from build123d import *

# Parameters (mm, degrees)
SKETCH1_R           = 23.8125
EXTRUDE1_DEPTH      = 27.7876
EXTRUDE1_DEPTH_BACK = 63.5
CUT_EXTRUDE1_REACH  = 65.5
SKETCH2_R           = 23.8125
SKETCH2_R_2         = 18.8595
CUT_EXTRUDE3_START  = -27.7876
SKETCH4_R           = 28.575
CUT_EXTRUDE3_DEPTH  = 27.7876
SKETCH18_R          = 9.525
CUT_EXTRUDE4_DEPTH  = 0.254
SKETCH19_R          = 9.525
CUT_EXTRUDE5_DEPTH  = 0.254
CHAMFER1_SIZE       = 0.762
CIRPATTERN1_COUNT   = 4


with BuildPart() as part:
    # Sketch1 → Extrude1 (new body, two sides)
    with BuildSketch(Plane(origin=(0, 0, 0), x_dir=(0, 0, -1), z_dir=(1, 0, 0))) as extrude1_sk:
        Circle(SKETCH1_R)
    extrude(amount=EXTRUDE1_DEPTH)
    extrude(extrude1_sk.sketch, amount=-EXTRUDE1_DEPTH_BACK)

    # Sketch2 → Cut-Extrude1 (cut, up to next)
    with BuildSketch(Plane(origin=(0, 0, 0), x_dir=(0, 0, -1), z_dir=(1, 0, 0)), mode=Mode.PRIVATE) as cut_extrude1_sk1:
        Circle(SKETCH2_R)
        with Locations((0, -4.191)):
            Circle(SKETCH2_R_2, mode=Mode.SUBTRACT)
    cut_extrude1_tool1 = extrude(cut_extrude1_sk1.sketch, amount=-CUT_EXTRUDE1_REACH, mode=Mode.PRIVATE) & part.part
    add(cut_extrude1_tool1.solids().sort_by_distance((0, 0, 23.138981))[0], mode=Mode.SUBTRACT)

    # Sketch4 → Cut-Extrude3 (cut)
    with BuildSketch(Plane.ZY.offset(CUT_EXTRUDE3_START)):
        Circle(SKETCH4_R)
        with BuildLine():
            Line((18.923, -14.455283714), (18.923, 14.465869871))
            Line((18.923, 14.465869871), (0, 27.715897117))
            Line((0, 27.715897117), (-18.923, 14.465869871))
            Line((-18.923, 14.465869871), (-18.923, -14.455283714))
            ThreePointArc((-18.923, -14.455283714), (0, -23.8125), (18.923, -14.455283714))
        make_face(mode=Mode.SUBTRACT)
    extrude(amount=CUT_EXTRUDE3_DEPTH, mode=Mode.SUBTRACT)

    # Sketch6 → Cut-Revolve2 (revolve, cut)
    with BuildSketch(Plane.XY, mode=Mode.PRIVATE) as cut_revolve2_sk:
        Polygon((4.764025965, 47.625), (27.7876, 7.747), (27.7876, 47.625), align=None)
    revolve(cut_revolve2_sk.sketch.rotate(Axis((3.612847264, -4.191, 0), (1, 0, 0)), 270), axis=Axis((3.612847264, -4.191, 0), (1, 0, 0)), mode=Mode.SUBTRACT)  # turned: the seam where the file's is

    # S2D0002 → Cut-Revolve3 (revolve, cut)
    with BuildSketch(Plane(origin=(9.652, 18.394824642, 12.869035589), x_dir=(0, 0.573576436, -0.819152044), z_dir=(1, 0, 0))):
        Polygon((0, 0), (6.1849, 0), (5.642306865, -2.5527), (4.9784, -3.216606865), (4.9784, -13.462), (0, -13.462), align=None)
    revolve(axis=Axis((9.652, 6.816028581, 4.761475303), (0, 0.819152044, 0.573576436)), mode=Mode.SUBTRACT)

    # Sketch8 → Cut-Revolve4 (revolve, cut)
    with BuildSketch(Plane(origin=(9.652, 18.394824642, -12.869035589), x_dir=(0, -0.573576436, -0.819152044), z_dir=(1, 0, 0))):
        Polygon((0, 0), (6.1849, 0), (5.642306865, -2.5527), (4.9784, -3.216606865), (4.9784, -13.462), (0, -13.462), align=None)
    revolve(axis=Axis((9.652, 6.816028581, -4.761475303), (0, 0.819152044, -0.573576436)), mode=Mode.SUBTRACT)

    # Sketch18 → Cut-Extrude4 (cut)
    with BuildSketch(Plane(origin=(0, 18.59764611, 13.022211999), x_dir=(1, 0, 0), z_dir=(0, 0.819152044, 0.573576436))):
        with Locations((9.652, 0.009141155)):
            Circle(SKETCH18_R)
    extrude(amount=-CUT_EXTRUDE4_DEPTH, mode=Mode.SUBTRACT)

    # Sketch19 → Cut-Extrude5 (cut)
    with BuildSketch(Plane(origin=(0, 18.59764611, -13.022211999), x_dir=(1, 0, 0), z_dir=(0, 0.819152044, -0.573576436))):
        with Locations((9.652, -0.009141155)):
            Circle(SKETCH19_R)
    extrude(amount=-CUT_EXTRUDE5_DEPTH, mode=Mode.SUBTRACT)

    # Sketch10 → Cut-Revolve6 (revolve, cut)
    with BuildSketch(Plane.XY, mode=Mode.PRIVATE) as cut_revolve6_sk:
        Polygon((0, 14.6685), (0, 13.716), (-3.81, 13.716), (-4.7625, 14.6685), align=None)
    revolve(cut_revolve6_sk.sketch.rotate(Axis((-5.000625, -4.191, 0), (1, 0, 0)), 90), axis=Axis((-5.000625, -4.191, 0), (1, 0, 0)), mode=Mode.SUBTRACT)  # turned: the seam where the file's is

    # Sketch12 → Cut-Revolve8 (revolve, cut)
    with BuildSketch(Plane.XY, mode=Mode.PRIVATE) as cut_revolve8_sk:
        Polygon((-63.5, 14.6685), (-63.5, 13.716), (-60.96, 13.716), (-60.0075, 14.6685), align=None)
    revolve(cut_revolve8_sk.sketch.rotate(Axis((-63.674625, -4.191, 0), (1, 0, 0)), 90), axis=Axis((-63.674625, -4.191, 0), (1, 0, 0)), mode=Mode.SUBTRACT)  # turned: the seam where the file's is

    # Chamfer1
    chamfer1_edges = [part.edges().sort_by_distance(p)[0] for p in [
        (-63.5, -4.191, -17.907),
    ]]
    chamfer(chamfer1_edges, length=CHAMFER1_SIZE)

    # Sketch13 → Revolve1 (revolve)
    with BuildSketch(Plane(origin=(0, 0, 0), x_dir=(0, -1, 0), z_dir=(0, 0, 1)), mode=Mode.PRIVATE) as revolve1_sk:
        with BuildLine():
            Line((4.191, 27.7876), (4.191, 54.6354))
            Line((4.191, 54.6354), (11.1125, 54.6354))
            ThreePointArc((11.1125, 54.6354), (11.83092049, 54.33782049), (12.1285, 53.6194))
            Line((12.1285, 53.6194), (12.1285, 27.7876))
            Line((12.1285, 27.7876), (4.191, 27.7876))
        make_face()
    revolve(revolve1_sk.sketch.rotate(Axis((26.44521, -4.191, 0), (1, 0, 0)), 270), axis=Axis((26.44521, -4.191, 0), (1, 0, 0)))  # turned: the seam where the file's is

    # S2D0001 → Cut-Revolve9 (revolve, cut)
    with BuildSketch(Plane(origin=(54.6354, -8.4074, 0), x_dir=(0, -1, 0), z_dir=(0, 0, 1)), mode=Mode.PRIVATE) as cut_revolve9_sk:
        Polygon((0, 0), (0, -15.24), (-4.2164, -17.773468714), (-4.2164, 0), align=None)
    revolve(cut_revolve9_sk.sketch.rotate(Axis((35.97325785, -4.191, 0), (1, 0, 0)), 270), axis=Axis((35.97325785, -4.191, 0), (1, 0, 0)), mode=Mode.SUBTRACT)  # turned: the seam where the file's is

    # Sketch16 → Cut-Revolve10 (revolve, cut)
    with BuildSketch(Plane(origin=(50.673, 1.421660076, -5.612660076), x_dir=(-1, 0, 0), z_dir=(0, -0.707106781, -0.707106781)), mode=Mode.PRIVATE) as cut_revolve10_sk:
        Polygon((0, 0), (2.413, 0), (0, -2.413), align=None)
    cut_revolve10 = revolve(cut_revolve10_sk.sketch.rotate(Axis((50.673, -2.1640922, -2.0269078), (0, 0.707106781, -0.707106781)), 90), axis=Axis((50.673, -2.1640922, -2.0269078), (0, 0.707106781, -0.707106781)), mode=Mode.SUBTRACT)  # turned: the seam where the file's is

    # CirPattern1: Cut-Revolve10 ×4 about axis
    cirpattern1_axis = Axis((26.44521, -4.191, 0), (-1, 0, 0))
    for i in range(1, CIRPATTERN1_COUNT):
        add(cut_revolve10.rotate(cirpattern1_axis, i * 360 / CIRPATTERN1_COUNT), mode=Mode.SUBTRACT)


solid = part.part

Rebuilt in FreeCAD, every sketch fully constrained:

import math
import FreeCAD as App
import Part
import Sketcher

V = App.Vector
Q = App.Units.Quantity


def edges_at(feature, points):
    """Names of the edges that pass closest to the given points."""
    edges = feature.Shape.Edges
    near = lambda p: min(range(len(edges)), key=lambda i: edges[i].distToShape(Part.Vertex(*p))[0])
    return sorted({f"Edge{near(p) + 1}" for p in points})

doc = App.newDocument("Part")
params = doc.addObject("Spreadsheet::Sheet", "Params")
for row, (alias, value) in enumerate([
    ("sketch1_diameter", "1.875 in"),
    ("pad1_length", "1.094 in"),
    ("pad1_length2", "2.5 in"),
    ("sketch2_diameter", "1.875 in"),
    ("sketch2_diameter2", "1.485 in"),
    ("sketch3_diameter", "2.25 in"),
    ("sketch3_radius", "0.9375 in"),
    ("pocket2_length", "1.094 in"),
    ("sketch4_height", "1.57 in"),
    ("groove_angle", "360 deg"),
    ("sketch5_length", "0.53 in"),
    ("sketch5_length2", "0.196 in"),
    ("groove2_angle", "360 deg"),
    ("sketch6_length", "0.53 in"),
    ("sketch6_length2", "0.196 in"),
    ("groove3_angle", "360 deg"),
    ("sketch7_diameter", "0.75 in"),
    ("pocket3_length", "0.01 in"),
    ("sketch8_diameter", "0.75 in"),
    ("pocket4_length", "0.01 in"),
    ("sketch9_width", "0.15 in"),
    ("sketch9_width2", "0.1875 in"),
    ("groove4_angle", "360 deg"),
    ("sketch10_width", "0.1 in"),
    ("groove5_angle", "360 deg"),
    ("chamfer_size", "0.03 in"),
    ("sketch11_radius", "0.04 in"),
    ("sketch11_width", "1.057 in"),
    ("sketch11_height", "0.3125 in"),
    ("revolution_angle", "360 deg"),
    ("sketch12_width", "0.6 in"),
    ("sketch12_height", "0.166 in"),
    ("groove6_angle", "360 deg"),
    ("sketch13_width", "0.095 in"),
    ("groove7_angle", "360 deg"),
], start=1):
    params.set(f"A{row}", alias)
    params.set(f"B{row}", "=" + value)
    params.setAlias(f"B{row}", alias)

body = doc.addObject("PartDesign::Body", "Body")

# Sketch on YZ plane
sketch1 = body.newObject("Sketcher::SketchObject", "Sketch")
sketch1.AttachmentSupport = (doc.getObject("YZ_Plane"), [""])
sketch1.MapMode = "FlatFace"
sketch1.addGeometry(Part.Circle(V(0, 0, 0), V(0, 0, 1), 24), False)
sketch1.addConstraint(Sketcher.Constraint("Coincident", 0, 3, -1, 1))
sketch1.addConstraint(Sketcher.Constraint("Diameter", 0, Q("1.875 in")))
sketch1.setExpression("Constraints[1]", "Params.sketch1_diameter")
pad1 = body.newObject("PartDesign::Pad", "Pad")
pad1.Profile = sketch1
pad1.Type = "TwoLengths"
pad1.setExpression("Length", "Params.pad1_length")
pad1.setExpression("Length2", "Params.pad1_length2")

# Sketch on YZ plane
sketch2 = body.newObject("Sketcher::SketchObject", "Sketch001")
sketch2.AttachmentSupport = (doc.getObject("YZ_Plane"), [""])
sketch2.MapMode = "FlatFace"
sketch2.addGeometry(Part.Circle(V(0, 0, 0), V(0, 0, 1), 24), False)
sketch2.addGeometry(Part.Circle(V(-4, 0, 0), V(0, 0, 1), 19), False)
sketch2.addConstraint(Sketcher.Constraint("Coincident", 0, 3, -1, 1))
sketch2.addConstraint(Sketcher.Constraint("PointOnObject", 1, 3, -1))
sketch2.addConstraint(Sketcher.Constraint("Diameter", 0, Q("1.875 in")))
sketch2.addConstraint(Sketcher.Constraint("Diameter", 1, Q("1.485 in")))
sketch2.addConstraint(Sketcher.Constraint("DistanceX", 1, 3, -1, 1, Q("0.165 in")))
sketch2.setExpression("Constraints[2]", "Params.sketch2_diameter")
sketch2.setExpression("Constraints[3]", "Params.sketch2_diameter2")
pocket1 = body.newObject("PartDesign::Pocket", "Pocket")
pocket1.Profile = sketch2
pocket1.Type = "UpToFirst"

# Sketch on YZ plane
sketch3 = body.newObject("Sketcher::SketchObject", "Sketch002")
sketch3.AttachmentSupport = (doc.getObject("YZ_Plane"), [""])
sketch3.MapMode = "FlatFace"
sketch3.AttachmentOffset = App.Placement(V(0, 0, 1.094 * 25.4), App.Rotation())
sketch3.addGeometry(Part.Circle(V(0, 0, 0), V(0, 0, 1), 29), False)
sketch3.addGeometry(Part.LineSegment(V(14, 19, 0), V(-14, 19, 0)), False)
sketch3.addGeometry(Part.ArcOfCircle(Part.Circle(V(0, 0, 0), V(0, 0, 1), 24), math.radians(127), math.radians(233)), False)
sketch3.addGeometry(Part.LineSegment(V(-14, -19, 0), V(14, -19, 0)), False)
sketch3.addGeometry(Part.LineSegment(V(14, -19, 0), V(28, 0, 0)), False)
sketch3.addGeometry(Part.LineSegment(V(28, 0, 0), V(14, 19, 0)), False)
sketch3.addConstraint(Sketcher.Constraint("Coincident", 1, 2, 2, 1))
sketch3.addConstraint(Sketcher.Constraint("Coincident", 2, 2, 3, 1))
sketch3.addConstraint(Sketcher.Constraint("Coincident", 3, 2, 4, 1))
sketch3.addConstraint(Sketcher.Constraint("Coincident", 4, 2, 5, 1))
sketch3.addConstraint(Sketcher.Constraint("Coincident", 5, 2, 1, 1))
sketch3.addConstraint(Sketcher.Constraint("Horizontal", 1))
sketch3.addConstraint(Sketcher.Constraint("Horizontal", 3))
sketch3.addConstraint(Sketcher.Constraint("Coincident", 0, 3, -1, 1))
sketch3.addConstraint(Sketcher.Constraint("Coincident", 2, 3, -1, 1))
sketch3.addConstraint(Sketcher.Constraint("Symmetric", 3, 2, 5, 2, -1))
sketch3.addConstraint(Sketcher.Constraint("PointOnObject", 4, 2, -1))
sketch3.addConstraint(Sketcher.Constraint("Diameter", 0, Q("2.25 in")))
sketch3.addConstraint(Sketcher.Constraint("Angle", 4, Q("55 deg")))
sketch3.addConstraint(Sketcher.Constraint("Radius", 2, Q("0.9375 in")))
sketch3.addConstraint(Sketcher.Constraint("DistanceY", 2, 2, 1, 2, Q("1.49 in")))
sketch3.addConstraint(Sketcher.Constraint("DistanceX", 1, 2, 1, 1, Q("28.921154 mm")))
sketch3.setExpression("Constraints[11]", "Params.sketch3_diameter")
sketch3.setExpression("Constraints[13]", "Params.sketch3_radius")
pocket2 = body.newObject("PartDesign::Pocket", "Pocket001")
pocket2.Profile = sketch3
pocket2.setExpression("Length", "Params.pocket2_length")

# Sketch on XY plane
sketch4 = body.newObject("Sketcher::SketchObject", "Sketch003")
sketch4.AttachmentSupport = (doc.getObject("XY_Plane"), [""])
sketch4.MapMode = "FlatFace"
sketch4.addGeometry(Part.LineSegment(V(5, 48, 0), V(28, 8, 0)), False)
sketch4.addGeometry(Part.LineSegment(V(28, 8, 0), V(28, 48, 0)), False)
sketch4.addGeometry(Part.LineSegment(V(28, 48, 0), V(5, 48, 0)), False)
sketch4.addGeometry(Part.LineSegment(V(5, -4, 0), V(28, -4, 0)), True)  # axis
sketch4.addConstraint(Sketcher.Constraint("Coincident", 0, 2, 1, 1))
sketch4.addConstraint(Sketcher.Constraint("Coincident", 1, 2, 2, 1))
sketch4.addConstraint(Sketcher.Constraint("Coincident", 2, 2, 0, 1))
sketch4.addConstraint(Sketcher.Constraint("Vertical", 1))
sketch4.addConstraint(Sketcher.Constraint("Horizontal", 2))
sketch4.addConstraint(Sketcher.Constraint("Horizontal", 3))
sketch4.addConstraint(Sketcher.Constraint("Vertical", 2, 2, 3, 1))
sketch4.addConstraint(Sketcher.Constraint("Vertical", 1, 2, 3, 2))
sketch4.addConstraint(Sketcher.Constraint("Angle", 0, Q("-60 deg")))
sketch4.addConstraint(Sketcher.Constraint("DistanceY", 1, 1, 1, 2, Q("1.57 in")))
sketch4.addConstraint(Sketcher.Constraint("DistanceY", 3, 1, 0, 2, Q("0.47 in")))
sketch4.addConstraint(Sketcher.Constraint("DistanceX", -1, 1, 0, 2, Q("1.094 in")))
sketch4.addConstraint(Sketcher.Constraint("DistanceY", -1, 1, 0, 2, Q("0.305 in")))
sketch4.setExpression("Constraints[9]", "Params.sketch4_height")
groove = body.newObject("PartDesign::Groove", "Groove")
groove.Profile = sketch4
groove.ReferenceAxis = (sketch4, ["Axis0"])
groove.setExpression("Angle", "Params.groove_angle")

# Sketch on YZ plane
sketch5 = body.newObject("Sketcher::SketchObject", "Sketch004")
sketch5.AttachmentSupport = (doc.getObject("YZ_Plane"), [""])
sketch5.MapMode = "FlatFace"
sketch5.AttachmentOffset = App.Placement(V(0, 0, 0.38 * 25.4), App.Rotation())
sketch5.addGeometry(Part.LineSegment(V(21.9, 7.8, 0), V(18.4, 12.9, 0)), False)
sketch5.addGeometry(Part.LineSegment(V(18.4, 12.9, 0), V(7.4, 5.1, 0)), False)
sketch5.addGeometry(Part.LineSegment(V(7.4, 5.1, 0), V(10.2, 1.1, 0)), False)
sketch5.addGeometry(Part.LineSegment(V(10.2, 1.1, 0), V(18.6, 6.9, 0)), False)
sketch5.addGeometry(Part.LineSegment(V(18.6, 6.9, 0), V(19.5, 6.8, 0)), False)
sketch5.addGeometry(Part.LineSegment(V(19.5, 6.8, 0), V(21.9, 7.8, 0)), False)
sketch5.addGeometry(Part.LineSegment(V(7.4, 5.1, 0), V(18.4, 12.9, 0)), True)  # axis
sketch5.addConstraint(Sketcher.Constraint("Coincident", 0, 2, 1, 1))
sketch5.addConstraint(Sketcher.Constraint("Coincident", 1, 2, 2, 1))
sketch5.addConstraint(Sketcher.Constraint("Coincident", 2, 2, 3, 1))
sketch5.addConstraint(Sketcher.Constraint("Coincident", 3, 2, 4, 1))
sketch5.addConstraint(Sketcher.Constraint("Coincident", 4, 2, 5, 1))
sketch5.addConstraint(Sketcher.Constraint("Coincident", 5, 2, 0, 1))
sketch5.addConstraint(Sketcher.Constraint("Coincident", 6, 1, 1, 2))
sketch5.addConstraint(Sketcher.Constraint("Coincident", 6, 2, 0, 2))
sketch5.addConstraint(Sketcher.Constraint("Perpendicular", 0, 1))
sketch5.addConstraint(Sketcher.Constraint("Perpendicular", 1, 2))
sketch5.addConstraint(Sketcher.Constraint("Perpendicular", 2, 3))
sketch5.addConstraint(Sketcher.Constraint("Angle", 0, Q("125 deg")))
sketch5.addConstraint(Sketcher.Constraint("Angle", 4, Q("-10 deg")))
sketch5.addConstraint(Sketcher.Constraint("Angle", 5, Q("23 deg")))
sketch5.addConstraint(Sketcher.Constraint("Distance", 1, Q("0.53 in")))
sketch5.addConstraint(Sketcher.Constraint("Distance", 2, Q("0.196 in")))
sketch5.addConstraint(Sketcher.Constraint("Distance", 0, Q("0.2435 in")))
sketch5.addConstraint(Sketcher.Constraint("DistanceX", -1, 1, 1, 2, Q("7.3674 mm")))
sketch5.addConstraint(Sketcher.Constraint("DistanceY", -1, 1, 3, 2, Q("6.945999 mm")))
sketch5.addConstraint(Sketcher.Constraint("Distance", 5, Q("2.609729 mm")))
sketch5.setExpression("Constraints[14]", "Params.sketch5_length")
sketch5.setExpression("Constraints[15]", "Params.sketch5_length2")
groove2 = body.newObject("PartDesign::Groove", "Groove001")
groove2.Profile = sketch5
groove2.ReferenceAxis = (sketch5, ["Axis0"])
groove2.setExpression("Angle", "Params.groove2_angle")

# Sketch on YZ plane
sketch6 = body.newObject("Sketcher::SketchObject", "Sketch005")
sketch6.AttachmentSupport = (doc.getObject("YZ_Plane"), [""])
sketch6.MapMode = "FlatFace"
sketch6.AttachmentOffset = App.Placement(V(0, 0, 0.38 * 25.4), App.Rotation())
sketch6.addGeometry(Part.LineSegment(V(14.8, -17.9, 0), V(18.4, -12.9, 0)), False)
sketch6.addGeometry(Part.LineSegment(V(18.4, -12.9, 0), V(7.4, -5.1, 0)), False)
sketch6.addGeometry(Part.LineSegment(V(7.4, -5.1, 0), V(4.5, -9.2, 0)), False)
sketch6.addGeometry(Part.LineSegment(V(4.5, -9.2, 0), V(12.9, -15.1, 0)), False)
sketch6.addGeometry(Part.LineSegment(V(12.9, -15.1, 0), V(13.1, -16, 0)), False)
sketch6.addGeometry(Part.LineSegment(V(13.1, -16, 0), V(14.8, -17.9, 0)), False)
sketch6.addGeometry(Part.LineSegment(V(7.4, -5.1, 0), V(18.4, -12.9, 0)), True)  # axis
sketch6.addConstraint(Sketcher.Constraint("Coincident", 0, 2, 1, 1))
sketch6.addConstraint(Sketcher.Constraint("Coincident", 1, 2, 2, 1))
sketch6.addConstraint(Sketcher.Constraint("Coincident", 2, 2, 3, 1))
sketch6.addConstraint(Sketcher.Constraint("Coincident", 3, 2, 4, 1))
sketch6.addConstraint(Sketcher.Constraint("Coincident", 4, 2, 5, 1))
sketch6.addConstraint(Sketcher.Constraint("Coincident", 5, 2, 0, 1))
sketch6.addConstraint(Sketcher.Constraint("Coincident", 6, 1, 1, 2))
sketch6.addConstraint(Sketcher.Constraint("Coincident", 6, 2, 0, 2))
sketch6.addConstraint(Sketcher.Constraint("Perpendicular", 0, 1))
sketch6.addConstraint(Sketcher.Constraint("Perpendicular", 1, 2))
sketch6.addConstraint(Sketcher.Constraint("Perpendicular", 2, 3))
sketch6.addConstraint(Sketcher.Constraint("Angle", 0, Q("55 deg")))
sketch6.addConstraint(Sketcher.Constraint("Angle", 4, Q("-80 deg")))
sketch6.addConstraint(Sketcher.Constraint("Angle", 5, Q("-47 deg")))
sketch6.addConstraint(Sketcher.Constraint("Distance", 1, Q("0.53 in")))
sketch6.addConstraint(Sketcher.Constraint("Distance", 2, Q("0.196 in")))
sketch6.addConstraint(Sketcher.Constraint("Distance", 0, Q("0.2435 in")))
sketch6.addConstraint(Sketcher.Constraint("DistanceX", -1, 1, 1, 2, Q("7.3674 mm")))
sketch6.addConstraint(Sketcher.Constraint("Distance", 5, Q("2.609729 mm")))
sketch6.addConstraint(Sketcher.Constraint("DistanceY", 1, 2, -1, 1, Q("5.14755 mm")))
sketch6.setExpression("Constraints[14]", "Params.sketch6_length")
sketch6.setExpression("Constraints[15]", "Params.sketch6_length2")
groove3 = body.newObject("PartDesign::Groove", "Groove002")
groove3.Profile = sketch6
groove3.ReferenceAxis = (sketch6, ["Axis0"])
groove3.setExpression("Angle", "Params.groove3_angle")

# Sketch on an angled plane
sketch7 = body.newObject("Sketcher::SketchObject", "Sketch006")
sketch7.Placement = App.Placement(V(0, 18.597646, 13.022212), App.Rotation(V(1, 0, 0), V(0, 0.573576436, -0.819152044), V(0, 0.819152044, 0.573576436), "ZXY"))
sketch7.addGeometry(Part.Circle(V(10, 0, 0), V(0, 0, 1), 10), False)
sketch7.addConstraint(Sketcher.Constraint("Diameter", 0, Q("0.75 in")))
sketch7.addConstraint(Sketcher.Constraint("DistanceX", -1, 1, 0, 3, Q("0.38 in")))
sketch7.addConstraint(Sketcher.Constraint("DistanceY", -1, 1, 0, 3, Q("0.009141 mm")))
sketch7.setExpression("Constraints[0]", "Params.sketch7_diameter")
pocket3 = body.newObject("PartDesign::Pocket", "Pocket002")
pocket3.Profile = sketch7
pocket3.setExpression("Length", "Params.pocket3_length")

# Sketch on an angled plane
sketch8 = body.newObject("Sketcher::SketchObject", "Sketch007")
sketch8.Placement = App.Placement(V(0, 18.597646, -13.022212), App.Rotation(V(1, 0, 0), V(0, -0.573576436, -0.819152044), V(0, 0.819152044, -0.573576436), "ZXY"))
sketch8.addGeometry(Part.Circle(V(10, 0, 0), V(0, 0, 1), 10), False)
sketch8.addConstraint(Sketcher.Constraint("Diameter", 0, Q("0.75 in")))
sketch8.addConstraint(Sketcher.Constraint("DistanceX", -1, 1, 0, 3, Q("0.38 in")))
sketch8.addConstraint(Sketcher.Constraint("DistanceY", 0, 3, -1, 1, Q("0.009141 mm")))
sketch8.setExpression("Constraints[0]", "Params.sketch8_diameter")
pocket4 = body.newObject("PartDesign::Pocket", "Pocket003")
pocket4.Profile = sketch8
pocket4.setExpression("Length", "Params.pocket4_length")

# Sketch on XY plane
sketch9 = body.newObject("Sketcher::SketchObject", "Sketch008")
sketch9.AttachmentSupport = (doc.getObject("XY_Plane"), [""])
sketch9.MapMode = "FlatFace"
sketch9.addGeometry(Part.LineSegment(V(0, 13.7, 0), V(0, 14.7, 0)), False)
sketch9.addGeometry(Part.LineSegment(V(0, 14.7, 0), V(-4.8, 14.7, 0)), False)
sketch9.addGeometry(Part.LineSegment(V(-4.8, 14.7, 0), V(-3.8, 13.7, 0)), False)
sketch9.addGeometry(Part.LineSegment(V(-3.8, 13.7, 0), V(0, 13.7, 0)), False)
sketch9.addGeometry(Part.LineSegment(V(-4.8, -4.2, 0), V(0, -4.2, 0)), True)  # axis
sketch9.addConstraint(Sketcher.Constraint("Coincident", 0, 2, 1, 1))
sketch9.addConstraint(Sketcher.Constraint("Coincident", 1, 2, 2, 1))
sketch9.addConstraint(Sketcher.Constraint("Coincident", 2, 2, 3, 1))
sketch9.addConstraint(Sketcher.Constraint("Coincident", 3, 2, 0, 1))
sketch9.addConstraint(Sketcher.Constraint("Vertical", 0))
sketch9.addConstraint(Sketcher.Constraint("Horizontal", 1))
sketch9.addConstraint(Sketcher.Constraint("Horizontal", 3))
sketch9.addConstraint(Sketcher.Constraint("Horizontal", 4))
sketch9.addConstraint(Sketcher.Constraint("PointOnObject", 0, 2, -2))
sketch9.addConstraint(Sketcher.Constraint("PointOnObject", 4, 2, -2))
sketch9.addConstraint(Sketcher.Constraint("Vertical", 1, 2, 4, 1))
sketch9.addConstraint(Sketcher.Constraint("Angle", 2, Q("-45 deg")))
sketch9.addConstraint(Sketcher.Constraint("DistanceX", 3, 1, 3, 2, Q("0.15 in")))
sketch9.addConstraint(Sketcher.Constraint("DistanceX", 1, 2, 1, 1, Q("0.1875 in")))
sketch9.addConstraint(Sketcher.Constraint("DistanceY", -1, 1, 2, 2, Q("0.54 in")))
sketch9.addConstraint(Sketcher.Constraint("DistanceY", 4, 1, -1, 1, Q("0.165 in")))
sketch9.setExpression("Constraints[12]", "Params.sketch9_width")
sketch9.setExpression("Constraints[13]", "Params.sketch9_width2")
groove4 = body.newObject("PartDesign::Groove", "Groove003")
groove4.Profile = sketch9
groove4.ReferenceAxis = (sketch9, ["Axis0"])
groove4.setExpression("Angle", "Params.groove4_angle")

# Sketch on XY plane
sketch10 = body.newObject("Sketcher::SketchObject", "Sketch009")
sketch10.AttachmentSupport = (doc.getObject("XY_Plane"), [""])
sketch10.MapMode = "FlatFace"
sketch10.addGeometry(Part.LineSegment(V(-63.5, 14.7, 0), V(-63.5, 13.7, 0)), False)
sketch10.addGeometry(Part.LineSegment(V(-63.5, 13.7, 0), V(-61, 13.7, 0)), False)
sketch10.addGeometry(Part.LineSegment(V(-61, 13.7, 0), V(-60, 14.7, 0)), False)
sketch10.addGeometry(Part.LineSegment(V(-60, 14.7, 0), V(-63.5, 14.7, 0)), False)
sketch10.addGeometry(Part.LineSegment(V(-63.5, -4.2, 0), V(-60, -4.2, 0)), True)  # axis
sketch10.addConstraint(Sketcher.Constraint("Coincident", 0, 2, 1, 1))
sketch10.addConstraint(Sketcher.Constraint("Coincident", 1, 2, 2, 1))
sketch10.addConstraint(Sketcher.Constraint("Coincident", 2, 2, 3, 1))
sketch10.addConstraint(Sketcher.Constraint("Coincident", 3, 2, 0, 1))
sketch10.addConstraint(Sketcher.Constraint("Vertical", 0))
sketch10.addConstraint(Sketcher.Constraint("Horizontal", 1))
sketch10.addConstraint(Sketcher.Constraint("Horizontal", 3))
sketch10.addConstraint(Sketcher.Constraint("Horizontal", 4))
sketch10.addConstraint(Sketcher.Constraint("Vertical", 3, 2, 4, 1))
sketch10.addConstraint(Sketcher.Constraint("Vertical", 2, 2, 4, 2))
sketch10.addConstraint(Sketcher.Constraint("DistanceX", 1, 1, 1, 2, Q("0.1 in")))
sketch10.addConstraint(Sketcher.Constraint("Angle", 2, Q("45 deg")))
sketch10.addConstraint(Sketcher.Constraint("DistanceX", 0, 2, -1, 1, Q("2.5 in")))
sketch10.addConstraint(Sketcher.Constraint("DistanceY", -1, 1, 0, 2, Q("0.54 in")))
sketch10.addConstraint(Sketcher.Constraint("DistanceX", 3, 2, 3, 1, Q("0.1375 in")))
sketch10.addConstraint(Sketcher.Constraint("DistanceY", 4, 1, -1, 1, Q("0.165 in")))
sketch10.setExpression("Constraints[10]", "Params.sketch10_width")
groove5 = body.newObject("PartDesign::Groove", "Groove004")
groove5.Profile = sketch10
groove5.ReferenceAxis = (sketch10, ["Axis0"])
groove5.setExpression("Angle", "Params.groove5_angle")
doc.recompute()

chamfer = body.newObject("PartDesign::Chamfer", "Chamfer")
chamfer.Base = (groove5, edges_at(groove5, [(-63.5, -4.191, -17.907)]))
chamfer.setExpression("Size", "Params.chamfer_size")

# Sketch on XY plane
sketch11 = body.newObject("Sketcher::SketchObject", "Sketch010")
sketch11.AttachmentSupport = (doc.getObject("XY_Plane"), [""])
sketch11.MapMode = "FlatFace"
sketch11.addGeometry(Part.LineSegment(V(54.6, -4.2, 0), V(27.8, -4.2, 0)), False)
sketch11.addGeometry(Part.LineSegment(V(27.8, -4.2, 0), V(27.8, -12.1, 0)), False)
sketch11.addGeometry(Part.LineSegment(V(27.8, -12.1, 0), V(53.6, -12.1, 0)), False)
sketch11.addGeometry(Part.ArcOfCircle(Part.Circle(V(53.6, -11.1, 0), V(0, 0, 1), 1), math.radians(-90), math.radians(0)), False)
sketch11.addGeometry(Part.LineSegment(V(54.6, -11.1, 0), V(54.6, -4.2, 0)), False)
sketch11.addGeometry(Part.LineSegment(V(27.8, -4.2, 0), V(54.6, -4.2, 0)), True)  # axis
sketch11.addConstraint(Sketcher.Constraint("Coincident", 0, 2, 1, 1))
sketch11.addConstraint(Sketcher.Constraint("Coincident", 1, 2, 2, 1))
sketch11.addConstraint(Sketcher.Constraint("Tangent", 2, 2, 3, 1))
sketch11.addConstraint(Sketcher.Constraint("Tangent", 3, 2, 4, 1))
sketch11.addConstraint(Sketcher.Constraint("Coincident", 4, 2, 0, 1))
sketch11.addConstraint(Sketcher.Constraint("Horizontal", 0))
sketch11.addConstraint(Sketcher.Constraint("Vertical", 1))
sketch11.addConstraint(Sketcher.Constraint("Horizontal", 2))
sketch11.addConstraint(Sketcher.Constraint("Vertical", 4))
sketch11.addConstraint(Sketcher.Constraint("Horizontal", 5))
sketch11.addConstraint(Sketcher.Constraint("Coincident", 5, 1, 0, 2))
sketch11.addConstraint(Sketcher.Constraint("Vertical", 3, 2, 5, 2))
sketch11.addConstraint(Sketcher.Constraint("Radius", 3, Q("0.04 in")))
sketch11.addConstraint(Sketcher.Constraint("DistanceX", 0, 2, 0, 1, Q("1.057 in")))
sketch11.addConstraint(Sketcher.Constraint("DistanceY", 1, 2, 1, 1, Q("0.3125 in")))
sketch11.addConstraint(Sketcher.Constraint("DistanceX", -1, 1, 3, 3, Q("2.111 in")))
sketch11.addConstraint(Sketcher.Constraint("DistanceY", 3, 3, -1, 1, Q("0.4375 in")))
sketch11.setExpression("Constraints[12]", "Params.sketch11_radius")
sketch11.setExpression("Constraints[13]", "Params.sketch11_width")
sketch11.setExpression("Constraints[14]", "Params.sketch11_height")
revolution = body.newObject("PartDesign::Revolution", "Revolution")
revolution.Profile = sketch11
revolution.ReferenceAxis = (sketch11, ["Axis0"])
revolution.setExpression("Angle", "Params.revolution_angle")

# Sketch on XY plane
sketch12 = body.newObject("Sketcher::SketchObject", "Sketch011")
sketch12.AttachmentSupport = (doc.getObject("XY_Plane"), [""])
sketch12.MapMode = "FlatFace"
sketch12.addGeometry(Part.LineSegment(V(39.4, -8.4, 0), V(54.6, -8.4, 0)), False)
sketch12.addGeometry(Part.LineSegment(V(54.6, -8.4, 0), V(54.6, -4.2, 0)), False)
sketch12.addGeometry(Part.LineSegment(V(54.6, -4.2, 0), V(36.9, -4.2, 0)), False)
sketch12.addGeometry(Part.LineSegment(V(36.9, -4.2, 0), V(39.4, -8.4, 0)), False)
sketch12.addGeometry(Part.LineSegment(V(36.9, -4.2, 0), V(54.6, -4.2, 0)), True)  # axis
sketch12.addConstraint(Sketcher.Constraint("Coincident", 0, 2, 1, 1))
sketch12.addConstraint(Sketcher.Constraint("Coincident", 1, 2, 2, 1))
sketch12.addConstraint(Sketcher.Constraint("Coincident", 2, 2, 3, 1))
sketch12.addConstraint(Sketcher.Constraint("Coincident", 3, 2, 0, 1))
sketch12.addConstraint(Sketcher.Constraint("Horizontal", 0))
sketch12.addConstraint(Sketcher.Constraint("Vertical", 1))
sketch12.addConstraint(Sketcher.Constraint("Horizontal", 2))
sketch12.addConstraint(Sketcher.Constraint("Horizontal", 4))
sketch12.addConstraint(Sketcher.Constraint("Coincident", 4, 1, 2, 2))
sketch12.addConstraint(Sketcher.Constraint("Vertical", 0, 2, 4, 2))
sketch12.addConstraint(Sketcher.Constraint("DistanceX", 0, 1, 0, 2, Q("0.6 in")))
sketch12.addConstraint(Sketcher.Constraint("Angle", 3, Q("-59 deg")))
sketch12.addConstraint(Sketcher.Constraint("DistanceY", 1, 1, 1, 2, Q("0.166 in")))
sketch12.addConstraint(Sketcher.Constraint("DistanceX", -1, 1, 0, 2, Q("2.151 in")))
sketch12.addConstraint(Sketcher.Constraint("DistanceY", 0, 2, -1, 1, Q("0.331 in")))
sketch12.setExpression("Constraints[10]", "Params.sketch12_width")
sketch12.setExpression("Constraints[12]", "Params.sketch12_height")
groove6 = body.newObject("PartDesign::Groove", "Groove005")
groove6.Profile = sketch12
groove6.ReferenceAxis = (sketch12, ["Axis0"])
groove6.setExpression("Angle", "Params.groove6_angle")

# Sketch on an angled plane
sketch13 = body.newObject("Sketcher::SketchObject", "Sketch012")
sketch13.Placement = App.Placement(V(50.673, 1.42166, -5.61266), App.Rotation(V(-1, 0, 0), V(0, 0.707106781, -0.707106781), V(0, -0.707106781, -0.707106781), "ZXY"))
sketch13.addGeometry(Part.LineSegment(V(2.4, 0, 0), V(0, 0, 0)), False)
sketch13.addGeometry(Part.LineSegment(V(0, 0, 0), V(0, -2.4, 0)), False)
sketch13.addGeometry(Part.LineSegment(V(0, -2.4, 0), V(2.4, 0, 0)), False)
sketch13.addConstraint(Sketcher.Constraint("Coincident", 0, 2, 1, 1))
sketch13.addConstraint(Sketcher.Constraint("Coincident", 1, 2, 2, 1))
sketch13.addConstraint(Sketcher.Constraint("Coincident", 2, 2, 0, 1))
sketch13.addConstraint(Sketcher.Constraint("Horizontal", 0))
sketch13.addConstraint(Sketcher.Constraint("Vertical", 1))
sketch13.addConstraint(Sketcher.Constraint("Coincident", 0, 2, -1, 1))
sketch13.addConstraint(Sketcher.Constraint("Equal", 0, 1))
sketch13.addConstraint(Sketcher.Constraint("DistanceX", 0, 2, 0, 1, Q("0.095 in")))
sketch13.setExpression("Constraints[7]", "Params.sketch13_width")
groove7 = body.newObject("PartDesign::Groove", "Groove006")
groove7.Profile = sketch13
groove7.ReferenceAxis = (sketch13, ["V_Axis"])
groove7.setExpression("Angle", "Params.groove7_angle")
doc.recompute()

datumline = body.newObject("PartDesign::Line", "DatumLine")
datumline.Placement = App.Placement(V(0, -4.191, 0), App.Rotation(V(0, 0, 1), V(-1, 0, 0)))
polarpattern = body.newObject("PartDesign::PolarPattern", "PolarPattern")
polarpattern.Originals = [groove7]
polarpattern.Axis = (datumline, [""])
polarpattern.Angle = 360
polarpattern.Occurrences = 4
body.Tip = polarpattern

doc.recompute()
